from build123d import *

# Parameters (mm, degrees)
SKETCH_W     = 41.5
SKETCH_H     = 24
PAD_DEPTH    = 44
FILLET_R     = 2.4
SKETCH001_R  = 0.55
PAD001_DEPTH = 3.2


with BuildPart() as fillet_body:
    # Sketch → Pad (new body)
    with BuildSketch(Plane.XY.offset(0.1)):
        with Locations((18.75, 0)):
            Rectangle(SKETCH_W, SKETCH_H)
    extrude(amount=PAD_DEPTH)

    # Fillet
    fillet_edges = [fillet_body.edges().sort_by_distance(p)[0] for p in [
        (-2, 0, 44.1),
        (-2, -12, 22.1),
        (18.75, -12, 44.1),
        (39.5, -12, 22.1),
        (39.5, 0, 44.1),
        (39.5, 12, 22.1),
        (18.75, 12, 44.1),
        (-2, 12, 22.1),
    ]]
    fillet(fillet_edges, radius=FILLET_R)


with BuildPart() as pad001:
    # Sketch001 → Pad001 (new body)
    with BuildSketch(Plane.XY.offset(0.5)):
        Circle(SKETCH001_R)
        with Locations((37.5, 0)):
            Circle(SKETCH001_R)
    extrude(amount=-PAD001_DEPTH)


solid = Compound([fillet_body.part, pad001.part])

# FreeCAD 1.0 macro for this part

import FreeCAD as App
import Part
import Sketcher


def edges_at(feature, points):
    """Names of the edges that pass closest to the given points."""
    edges = feature.Shape.Edges
    near = lambda p: min(range(len(edges)), key=lambda i: edges[i].distToShape(Part.Vertex(*p))[0])
    return sorted({f"Edge{near(p) + 1}" for p in points})


def add_polygon(sketch, points):
    """Adds a closed chain of lines whose ends are joined by coincident constraints."""
    first, n = sketch.GeometryCount, len(points)
    for a, b in zip(points, points[1:] + points[:1]):
        sketch.addGeometry(Part.LineSegment(App.Vector(*a, 0), App.Vector(*b, 0)), False)
    for i in range(n):
        sketch.addConstraint(Sketcher.Constraint("Coincident", first + i, 2, first + (i + 1) % n, 1))

doc = App.newDocument("Part")
params = doc.addObject("Spreadsheet::Sheet", "Params")
for row, (alias, value) in enumerate([
    ("sketch1_height", "24 mm"),
    ("sketch1_width", "41.5 mm"),
    ("pad1_length", "44 mm"),
    ("fillet_radius", "2.4 mm"),
    ("sketch2_diameter", "1.1 mm"),
    ("pad2_length", "3.2 mm"),
], start=1):
    params.set(f"A{row}", alias)
    params.set(f"B{row}", "=" + value)
    params.setAlias(f"B{row}", alias)

body = doc.addObject("PartDesign::Body", "Body")

# Sketch on XY plane
sketch1 = body.newObject("Sketcher::SketchObject", "Sketch")
sketch1.AttachmentSupport = (doc.getObject("XY_Plane"), [""])
sketch1.MapMode = "FlatFace"
sketch1.AttachmentOffset = App.Placement(App.Vector(0, 0, 0.1), App.Rotation())
add_polygon(sketch1, [(-2, 12), (-2, -12), (40, -12), (40, 12)])  # lines 0-3
sketch1.addConstraint(Sketcher.Constraint("Vertical", 0))
sketch1.addConstraint(Sketcher.Constraint("Horizontal", 1))
sketch1.addConstraint(Sketcher.Constraint("Vertical", 2))
sketch1.addConstraint(Sketcher.Constraint("Horizontal", 3))
sketch1.addConstraint(Sketcher.Constraint("DistanceY", 0, 2, 0, 1, 24.0))
sketch1.addConstraint(Sketcher.Constraint("DistanceX", 1, 1, 1, 2, 41.5))
sketch1.addConstraint(Sketcher.Constraint("DistanceX", 0, 2, -1, 1, 2.0))
sketch1.addConstraint(Sketcher.Constraint("DistanceY", 0, 2, -1, 1, 12.0))
sketch1.setExpression("Constraints[8]", "Params.sketch1_height")
sketch1.setExpression("Constraints[9]", "Params.sketch1_width")
pad1 = body.newObject("PartDesign::Pad", "Pad")
pad1.Profile = sketch1
pad1.setExpression("Length", "Params.pad1_length")
doc.recompute()

fillet = body.newObject("PartDesign::Fillet", "Fillet")
fillet.Base = (pad1, edges_at(pad1, [
    (-2, 0, 44.1),
    (-2, -12, 22.1),
    (18.75, -12, 44.1),
    (39.5, -12, 22.1),
    (39.5, 0, 44.1),
    (39.5, 12, 22.1),
    (18.75, 12, 44.1),
    (-2, 12, 22.1),
]))
fillet.setExpression("Radius", "Params.fillet_radius")
body2 = doc.addObject("PartDesign::Body", "Body001")
body2.AllowCompound = True

# Sketch on XY plane
sketch2 = body2.newObject("Sketcher::SketchObject", "Sketch001")
sketch2.AttachmentSupport = (doc.getObject("XY_Plane001"), [""])
sketch2.MapMode = "FlatFace"
sketch2.AttachmentOffset = App.Placement(App.Vector(0, 0, 0.5), App.Rotation())
sketch2.addGeometry(Part.Circle(App.Vector(0, 0, 0), App.Vector(0, 0, 1), 0.6), False)
sketch2.addGeometry(Part.Circle(App.Vector(37.5, 0, 0), App.Vector(0, 0, 1), 0.6), False)
sketch2.addConstraint(Sketcher.Constraint("Coincident", 0, 3, -1, 1))
sketch2.addConstraint(Sketcher.Constraint("Equal", 0, 1))
sketch2.addConstraint(Sketcher.Constraint("PointOnObject", 1, 3, -1))
sketch2.addConstraint(Sketcher.Constraint("Diameter", 0, 1.1))
sketch2.addConstraint(Sketcher.Constraint("DistanceX", -1, 1, 1, 3, 37.5))
sketch2.setExpression("Constraints[3]", "Params.sketch2_diameter")
pad2 = body2.newObject("PartDesign::Pad", "Pad001")
pad2.Profile = sketch2
pad2.setExpression("Length", "Params.pad2_length")
pad2.Reversed = True

doc.recompute()
